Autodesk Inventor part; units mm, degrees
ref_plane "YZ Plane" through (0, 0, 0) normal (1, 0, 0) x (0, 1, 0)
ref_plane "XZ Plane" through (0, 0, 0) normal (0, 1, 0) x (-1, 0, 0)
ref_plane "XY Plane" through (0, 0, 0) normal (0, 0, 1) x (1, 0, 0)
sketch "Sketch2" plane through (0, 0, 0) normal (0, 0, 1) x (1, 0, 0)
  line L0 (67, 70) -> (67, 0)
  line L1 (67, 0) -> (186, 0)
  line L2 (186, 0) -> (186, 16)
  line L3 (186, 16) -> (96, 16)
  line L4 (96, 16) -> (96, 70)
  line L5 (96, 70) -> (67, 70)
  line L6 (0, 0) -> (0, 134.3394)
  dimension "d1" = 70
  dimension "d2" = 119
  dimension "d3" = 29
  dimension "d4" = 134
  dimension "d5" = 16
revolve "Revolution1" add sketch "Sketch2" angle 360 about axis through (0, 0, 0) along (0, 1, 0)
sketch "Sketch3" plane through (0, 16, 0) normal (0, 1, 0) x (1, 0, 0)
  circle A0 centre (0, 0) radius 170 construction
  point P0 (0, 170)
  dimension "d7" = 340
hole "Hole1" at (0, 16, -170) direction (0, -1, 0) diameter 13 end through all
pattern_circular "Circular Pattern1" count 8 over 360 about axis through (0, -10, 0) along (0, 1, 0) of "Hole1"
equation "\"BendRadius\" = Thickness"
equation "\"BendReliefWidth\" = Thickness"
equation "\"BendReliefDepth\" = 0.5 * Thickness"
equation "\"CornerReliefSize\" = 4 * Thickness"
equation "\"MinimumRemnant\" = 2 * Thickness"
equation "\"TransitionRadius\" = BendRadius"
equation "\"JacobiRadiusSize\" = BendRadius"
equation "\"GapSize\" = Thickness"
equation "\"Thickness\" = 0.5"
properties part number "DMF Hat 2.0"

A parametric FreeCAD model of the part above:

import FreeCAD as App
import Part
import Sketcher

V = App.Vector
Q = App.Units.Quantity

doc = App.newDocument("Part")
params = doc.addObject("Spreadsheet::Sheet", "Params")
for row, (alias, value) in enumerate([
    ("sketch1_width", "29 mm"),
    ("sketch1_width2", "119 mm"),
    ("sketch1_height", "70 mm"),
    ("sketch1_height2", "16 mm"),
    ("revolution_angle", "360 deg"),
    ("sketch2_diameter", "13 mm"),
    ("hole_diameter", "13 mm"),
], start=1):
    params.set(f"A{row}", alias)
    params.set(f"B{row}", "=" + value)
    params.setAlias(f"B{row}", alias)

body = doc.addObject("PartDesign::Body", "Body")

# Sketch on XY plane
sketch1 = body.newObject("Sketcher::SketchObject", "Sketch")
sketch1.AttachmentSupport = (doc.getObject("XY_Plane"), [""])
sketch1.MapMode = "FlatFace"
sketch1.addGeometry(Part.LineSegment(V(96, 70, 0), V(67, 70, 0)), False)
sketch1.addGeometry(Part.LineSegment(V(67, 70, 0), V(67, 0, 0)), False)
sketch1.addGeometry(Part.LineSegment(V(67, 0, 0), V(186, 0, 0)), False)
sketch1.addGeometry(Part.LineSegment(V(186, 0, 0), V(186, 16, 0)), False)
sketch1.addGeometry(Part.LineSegment(V(186, 16, 0), V(96, 16, 0)), False)
sketch1.addGeometry(Part.LineSegment(V(96, 16, 0), V(96, 70, 0)), False)
sketch1.addConstraint(Sketcher.Constraint("Coincident", 0, 2, 1, 1))
sketch1.addConstraint(Sketcher.Constraint("Coincident", 1, 2, 2, 1))
sketch1.addConstraint(Sketcher.Constraint("Coincident", 2, 2, 3, 1))
sketch1.addConstraint(Sketcher.Constraint("Coincident", 3, 2, 4, 1))
sketch1.addConstraint(Sketcher.Constraint("Coincident", 4, 2, 5, 1))
sketch1.addConstraint(Sketcher.Constraint("Coincident", 5, 2, 0, 1))
sketch1.addConstraint(Sketcher.Constraint("Horizontal", 0))
sketch1.addConstraint(Sketcher.Constraint("Vertical", 1))
sketch1.addConstraint(Sketcher.Constraint("Horizontal", 2))
sketch1.addConstraint(Sketcher.Constraint("Vertical", 3))
sketch1.addConstraint(Sketcher.Constraint("Horizontal", 4))
sketch1.addConstraint(Sketcher.Constraint("Vertical", 5))
sketch1.addConstraint(Sketcher.Constraint("PointOnObject", 1, 2, -1))
sketch1.addConstraint(Sketcher.Constraint("DistanceX", 0, 2, 0, 1, Q("29 mm")))
sketch1.addConstraint(Sketcher.Constraint("DistanceX", 2, 1, 2, 2, Q("119 mm")))
sketch1.addConstraint(Sketcher.Constraint("DistanceY", 1, 2, 1, 1, Q("70 mm")))
sketch1.addConstraint(Sketcher.Constraint("DistanceY", 3, 1, 3, 2, Q("16 mm")))
sketch1.addConstraint(Sketcher.Constraint("DistanceX", -1, 1, 0, 2, Q("67 mm")))
sketch1.setExpression("Constraints[13]", "Params.sketch1_width")
sketch1.setExpression("Constraints[14]", "Params.sketch1_width2")
sketch1.setExpression("Constraints[15]", "Params.sketch1_height")
sketch1.setExpression("Constraints[16]", "Params.sketch1_height2")
revolution = body.newObject("PartDesign::Revolution", "Revolution")
revolution.Profile = sketch1
revolution.ReferenceAxis = (sketch1, ["V_Axis"])
revolution.setExpression("Angle", "Params.revolution_angle")

# Sketch on XZ plane
sketch2 = body.newObject("Sketcher::SketchObject", "Sketch001")
sketch2.AttachmentSupport = (doc.getObject("XZ_Plane"), [""])
sketch2.MapMode = "FlatFace"
sketch2.AttachmentOffset = App.Placement(V(0, 0, -16), App.Rotation())
sketch2.addGeometry(Part.Circle(V(0, -170, 0), V(0, 0, 1), 6), False)
sketch2.addConstraint(Sketcher.Constraint("PointOnObject", 0, 3, -2))
sketch2.addConstraint(Sketcher.Constraint("Diameter", 0, Q("13 mm")))
sketch2.addConstraint(Sketcher.Constraint("DistanceY", 0, 3, -1, 1, Q("170 mm")))
sketch2.setExpression("Constraints[1]", "Params.sketch2_diameter")
doc.recompute()
hole = body.newObject("PartDesign::Hole", "Hole")
hole.Profile = sketch2
hole.ThreadType = "None"
hole.setExpression("Diameter", "Params.hole_diameter")
hole.DepthType = "ThroughAll"
hole.Reversed = True
doc.recompute()

polarpattern = body.newObject("PartDesign::PolarPattern", "PolarPattern")
polarpattern.Originals = [hole]
polarpattern.Axis = (doc.getObject("Y_Axis"), [""])
polarpattern.Angle = 360
polarpattern.Occurrences = 8
body.Tip = polarpattern

doc.recompute()
